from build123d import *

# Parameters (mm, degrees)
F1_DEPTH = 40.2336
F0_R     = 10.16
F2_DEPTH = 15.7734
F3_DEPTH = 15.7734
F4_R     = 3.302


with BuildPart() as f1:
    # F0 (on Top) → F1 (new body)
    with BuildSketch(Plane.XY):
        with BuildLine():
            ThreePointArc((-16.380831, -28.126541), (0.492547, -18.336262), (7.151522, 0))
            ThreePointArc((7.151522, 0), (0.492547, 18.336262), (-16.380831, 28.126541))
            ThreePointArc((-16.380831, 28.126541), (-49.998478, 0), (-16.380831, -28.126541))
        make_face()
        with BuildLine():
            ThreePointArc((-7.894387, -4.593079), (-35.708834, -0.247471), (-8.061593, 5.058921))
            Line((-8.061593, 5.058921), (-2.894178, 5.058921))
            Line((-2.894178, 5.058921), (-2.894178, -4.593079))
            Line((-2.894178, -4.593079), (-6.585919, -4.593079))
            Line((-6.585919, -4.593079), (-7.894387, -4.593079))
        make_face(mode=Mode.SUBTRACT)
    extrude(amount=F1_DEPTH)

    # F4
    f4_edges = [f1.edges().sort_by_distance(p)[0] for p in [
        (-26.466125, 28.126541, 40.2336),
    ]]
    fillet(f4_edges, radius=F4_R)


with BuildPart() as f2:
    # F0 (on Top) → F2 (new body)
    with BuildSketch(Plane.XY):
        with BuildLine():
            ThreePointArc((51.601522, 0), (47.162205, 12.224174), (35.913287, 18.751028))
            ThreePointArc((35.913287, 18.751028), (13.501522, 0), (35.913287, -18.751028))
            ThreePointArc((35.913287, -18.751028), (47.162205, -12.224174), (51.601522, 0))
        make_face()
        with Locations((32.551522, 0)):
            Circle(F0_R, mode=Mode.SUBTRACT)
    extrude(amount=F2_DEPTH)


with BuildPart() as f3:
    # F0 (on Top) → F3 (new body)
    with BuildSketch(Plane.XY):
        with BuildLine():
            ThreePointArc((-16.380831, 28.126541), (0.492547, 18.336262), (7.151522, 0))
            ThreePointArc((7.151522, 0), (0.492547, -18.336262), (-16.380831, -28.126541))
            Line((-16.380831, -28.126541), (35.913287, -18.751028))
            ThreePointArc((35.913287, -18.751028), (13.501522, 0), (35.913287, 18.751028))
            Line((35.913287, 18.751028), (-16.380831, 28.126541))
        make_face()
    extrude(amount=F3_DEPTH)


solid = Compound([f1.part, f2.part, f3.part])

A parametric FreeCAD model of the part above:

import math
import FreeCAD as App
import Part
import Sketcher

V = App.Vector
Q = App.Units.Quantity


def edges_at(feature, points):
    """Names of the edges that pass closest to the given points."""
    edges = feature.Shape.Edges
    near = lambda p: min(range(len(edges)), key=lambda i: edges[i].distToShape(Part.Vertex(*p))[0])
    return sorted({f"Edge{near(p) + 1}" for p in points})

doc = App.newDocument("Part")
body = doc.addObject("PartDesign::Body", "Body")

# Sketch on XY plane
sketch1 = doc.addObject("Sketcher::SketchObject", "Sketch")
body.addObject(sketch1)
sketch1.AttachmentSupport = (doc.XY_Plane, [""])
sketch1.MapMode = "FlatFace"
sketch1.addGeometry([
    Part.ArcOfCircle(Part.Circle(V(-21, 0, 0), V(0, 0, 1), 29), math.radians(-80), math.radians(0)),  # 0
    Part.ArcOfCircle(Part.Circle(V(-21, 0, 0), V(0, 0, 1), 29), math.radians(0), math.radians(80)),  # 1
    Part.ArcOfCircle(Part.Circle(V(-21, 0, 0), V(0, 0, 1), 29), math.radians(80), math.radians(280)),  # 2
    Part.LineSegment(V(-3, -5, 0), V(-8, -5, 0)),  # 3
    Part.ArcOfCircle(Part.Circle(V(-21, 0, 0), V(0, 0, 1), 14), math.radians(21), math.radians(341)),  # 4
    Part.LineSegment(V(-8, 5, 0), V(-3, 5, 0)),  # 5
    Part.LineSegment(V(-3, 5, 0), V(-3, -5, 0)),  # 6
], False)
sketch1.addConstraint([
    Sketcher.Constraint("Tangent", 0, 2, 1, 1),
    Sketcher.Constraint("Tangent", 1, 2, 2, 1),
    Sketcher.Constraint("Tangent", 2, 2, 0, 1),
    Sketcher.Constraint("Coincident", 3, 2, 4, 2),
    Sketcher.Constraint("Coincident", 4, 1, 5, 1),
    Sketcher.Constraint("Coincident", 5, 2, 6, 1),
    Sketcher.Constraint("Coincident", 6, 2, 3, 1),
    Sketcher.Constraint("Horizontal", 3),
    Sketcher.Constraint("Horizontal", 5),
    Sketcher.Constraint("Vertical", 6),
    Sketcher.Constraint("Coincident", 4, 3, 0, 3),
    Sketcher.Constraint("Symmetric", 1, 2, 2, 2, -1),
    Sketcher.Constraint("PointOnObject", 0, 2, -1),
    Sketcher.Constraint("Radius", 0, Q("1.1249999 in")),
    Sketcher.Constraint("Radius", 4, Q("0.5625 in")),
    Sketcher.Constraint("DistanceY", 6, 2, 6, 1, Q("0.38 in")),
    Sketcher.Constraint("DistanceX", 5, 2, 0, 2, Q("0.3955 in")),
    Sketcher.Constraint("DistanceX", 3, 2, 3, 1, Q("5.000209 mm")),
    Sketcher.Constraint("DistanceX", 2, 3, -1, 1, Q("21.423478 mm")),
    Sketcher.Constraint("DistanceX", 1, 2, -1, 1, Q("16.380831 mm")),
])
pad1 = doc.addObject("PartDesign::Pad", "Pad")
body.addObject(pad1)
pad1.Profile = sketch1
pad1.Length = Q("1.584 in")
doc.recompute()

fillet = doc.addObject("PartDesign::Fillet", "Fillet")
body.addObject(fillet)
fillet.Base = (pad1, edges_at(pad1, [(-49.998, 0, 40.234)]))
fillet.Radius = Q("0.13 in")
body2 = doc.addObject("PartDesign::Body", "Body001")

# Sketch on XY plane
sketch2 = doc.addObject("Sketcher::SketchObject", "Sketch001")
body2.addObject(sketch2)
sketch2.AttachmentSupport = (doc.getObject("XY_Plane001"), [""])
sketch2.MapMode = "FlatFace"
sketch2.addGeometry([
    Part.ArcOfCircle(Part.Circle(V(33, 0, 0), V(0, 0, 1), 19), math.radians(0), math.radians(80)),
    Part.ArcOfCircle(Part.Circle(V(33, 0, 0), V(0, 0, 1), 19), math.radians(80), math.radians(280)),
    Part.ArcOfCircle(Part.Circle(V(33, 0, 0), V(0, 0, 1), 19), math.radians(-80), math.radians(0)),
    Part.Circle(V(33, 0, 0), V(0, 0, 1), 10),
], False)
sketch2.addConstraint([
    Sketcher.Constraint("Tangent", 0, 2, 1, 1),
    Sketcher.Constraint("Tangent", 1, 2, 2, 1),
    Sketcher.Constraint("Tangent", 2, 2, 0, 1),
    Sketcher.Constraint("Coincident", 3, 3, 0, 3),
    Sketcher.Constraint("Symmetric", 0, 2, 1, 2, -1),
    Sketcher.Constraint("PointOnObject", 2, 2, -1),
    Sketcher.Constraint("Diameter", 3, Q("0.8 in")),
    Sketcher.Constraint("Radius", 0, Q("0.7500001 in")),
    Sketcher.Constraint("DistanceX", -1, 1, 0, 3, Q("32.55152 mm")),
    Sketcher.Constraint("DistanceY", 0, 3, 0, 2, Q("18.751029 mm")),
])
pad2 = doc.addObject("PartDesign::Pad", "Pad001")
body2.addObject(pad2)
pad2.Profile = sketch2
pad2.Length = Q("0.621 in")
body3 = doc.addObject("PartDesign::Body", "Body002")

# Sketch on XY plane
sketch3 = doc.addObject("Sketcher::SketchObject", "Sketch002")
body3.addObject(sketch3)
sketch3.AttachmentSupport = (doc.getObject("XY_Plane002"), [""])
sketch3.MapMode = "FlatFace"
sketch3.addGeometry([
    Part.ArcOfCircle(Part.Circle(V(-21, 0, 0), V(0, 0, 1), 29), math.radians(0), math.radians(80)),  # 0
    Part.ArcOfCircle(Part.Circle(V(-21, 0, 0), V(0, 0, 1), 29), math.radians(-80), math.radians(0)),  # 1
    Part.LineSegment(V(-16, -28, 0), V(36, -19, 0)),  # 2
    Part.ArcOfCircle(Part.Circle(V(33, 0, 0), V(0, 0, 1), 19), math.radians(80), math.radians(280)),  # 3
    Part.LineSegment(V(36, 19, 0), V(-16, 28, 0)),  # 4
], False)
sketch3.addConstraint([
    Sketcher.Constraint("Tangent", 0, 1, 1, 2),
    Sketcher.Constraint("Tangent", 1, 1, 2, 1),
    Sketcher.Constraint("Tangent", 2, 2, 3, 2),
    Sketcher.Constraint("Tangent", 3, 1, 4, 1),
    Sketcher.Constraint("Tangent", 4, 2, 0, 2),
    Sketcher.Constraint("Equal", 0, 1),
    Sketcher.Constraint("Symmetric", 2, 2, 3, 1, -1),
    Sketcher.Constraint("PointOnObject", 0, 1, -1),
    Sketcher.Constraint("Radius", 3, Q("0.75 in")),
    Sketcher.Constraint("Radius", 0, Q("1.1249999 in")),
    Sketcher.Constraint("DistanceX", 0, 1, 3, 3, Q("1 in")),
    Sketcher.Constraint("DistanceX", -1, 1, 0, 1, Q("7.151522 mm")),
])
pad3 = doc.addObject("PartDesign::Pad", "Pad002")
body3.addObject(pad3)
pad3.Profile = sketch3
pad3.Length = Q("0.621 in")

doc.recompute()
